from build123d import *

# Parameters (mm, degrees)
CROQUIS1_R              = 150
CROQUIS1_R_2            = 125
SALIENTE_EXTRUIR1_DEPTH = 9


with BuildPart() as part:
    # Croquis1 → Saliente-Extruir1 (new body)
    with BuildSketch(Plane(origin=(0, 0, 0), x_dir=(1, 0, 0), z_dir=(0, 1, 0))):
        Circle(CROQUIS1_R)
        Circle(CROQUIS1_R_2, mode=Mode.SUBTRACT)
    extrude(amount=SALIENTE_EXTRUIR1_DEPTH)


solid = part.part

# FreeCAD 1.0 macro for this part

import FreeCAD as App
import Part
import Sketcher
from FreeCAD import Vector
Q = App.Units.Quantity

doc = App.newDocument("Part")
body = doc.addObject("PartDesign::Body", "Body")

sketch1 = doc.addObject("Sketcher::SketchObject", "Sketch")
body.addObject(sketch1)
sketch1.AttachmentSupport = (doc.XZ_Plane, [""])
sketch1.MapMode = "FlatFace"
sketch1.addGeometry(Part.Circle(Vector(0, 0, 0), Vector(0, 0, 1), 150), False)
sketch1.addGeometry(Part.Circle(Vector(0, 0, 0), Vector(0, 0, 1), 125), False)
sketch1.addConstraint(Sketcher.Constraint("Coincident", 0, 3, -1, 1))
sketch1.addConstraint(Sketcher.Constraint("Coincident", 1, 3, -1, 1))
sketch1.addConstraint(Sketcher.Constraint("Diameter", 0, Q("300 mm")))
sketch1.addConstraint(Sketcher.Constraint("Diameter", 1, Q("250 mm")))
pad1 = doc.addObject("PartDesign::Pad", "Pad")
body.addObject(pad1)
pad1.Profile = sketch1
pad1.Length = 9
pad1.Reversed = True

doc.recompute()
